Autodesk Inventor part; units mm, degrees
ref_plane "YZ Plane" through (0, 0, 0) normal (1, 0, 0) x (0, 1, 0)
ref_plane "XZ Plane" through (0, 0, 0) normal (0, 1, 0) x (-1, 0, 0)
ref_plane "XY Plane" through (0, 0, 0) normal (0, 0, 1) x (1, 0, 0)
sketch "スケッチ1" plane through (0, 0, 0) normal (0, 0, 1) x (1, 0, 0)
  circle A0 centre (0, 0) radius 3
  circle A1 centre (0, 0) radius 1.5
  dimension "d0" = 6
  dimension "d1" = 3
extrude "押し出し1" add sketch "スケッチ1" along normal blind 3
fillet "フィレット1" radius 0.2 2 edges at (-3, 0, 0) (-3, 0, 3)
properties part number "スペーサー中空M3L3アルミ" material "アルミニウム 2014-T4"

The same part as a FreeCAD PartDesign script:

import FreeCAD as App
import Part
import Sketcher
Q = App.Units.Quantity


def edges_at(feature, points):
    """Names of the edges that pass closest to the given points."""
    edges = feature.Shape.Edges
    near = lambda p: min(range(len(edges)), key=lambda i: edges[i].distToShape(Part.Vertex(*p))[0])
    return sorted({f"Edge{near(p) + 1}" for p in points})

doc = App.newDocument("Part")
params = doc.addObject("Spreadsheet::Sheet", "Params")
for row, (alias, value) in enumerate([
    ("sketch1_diameter", "6 mm"),
    ("sketch1_diameter2", "3 mm"),
    ("pad1_length", "3 mm"),
    ("fillet_radius", "0.2 mm"),
], start=1):
    params.set(f"A{row}", alias)
    params.set(f"B{row}", "=" + value)
    params.setAlias(f"B{row}", alias)

body = doc.addObject("PartDesign::Body", "Body")

sketch1 = doc.addObject("Sketcher::SketchObject", "Sketch")
body.addObject(sketch1)
sketch1.AttachmentSupport = (doc.XY_Plane, [""])
sketch1.MapMode = "FlatFace"
sketch1.addGeometry(Part.Circle(App.Vector(0, 0, 0), App.Vector(0, 0, 1), 3), False)
sketch1.addGeometry(Part.Circle(App.Vector(0, 0, 0), App.Vector(0, 0, 1), 1.5), False)
sketch1.addConstraint(Sketcher.Constraint("Coincident", 0, 3, -1, 1))
sketch1.addConstraint(Sketcher.Constraint("Coincident", 1, 3, -1, 1))
sketch1.addConstraint(Sketcher.Constraint("Diameter", 0, Q("6 mm")))
sketch1.addConstraint(Sketcher.Constraint("Diameter", 1, Q("3 mm")))
sketch1.setExpression("Constraints[2]", "Params.sketch1_diameter")
sketch1.setExpression("Constraints[3]", "Params.sketch1_diameter2")
pad1 = doc.addObject("PartDesign::Pad", "Pad")
body.addObject(pad1)
pad1.Profile = sketch1
pad1.setExpression("Length", "Params.pad1_length")
doc.recompute()

fillet = doc.addObject("PartDesign::Fillet", "Fillet")
body.addObject(fillet)
fillet.Base = (pad1, edges_at(pad1, [(-3, 0, 0), (-3, 0, 3)]))
fillet.setExpression("Radius", "Params.fillet_radius")

doc.recompute()
